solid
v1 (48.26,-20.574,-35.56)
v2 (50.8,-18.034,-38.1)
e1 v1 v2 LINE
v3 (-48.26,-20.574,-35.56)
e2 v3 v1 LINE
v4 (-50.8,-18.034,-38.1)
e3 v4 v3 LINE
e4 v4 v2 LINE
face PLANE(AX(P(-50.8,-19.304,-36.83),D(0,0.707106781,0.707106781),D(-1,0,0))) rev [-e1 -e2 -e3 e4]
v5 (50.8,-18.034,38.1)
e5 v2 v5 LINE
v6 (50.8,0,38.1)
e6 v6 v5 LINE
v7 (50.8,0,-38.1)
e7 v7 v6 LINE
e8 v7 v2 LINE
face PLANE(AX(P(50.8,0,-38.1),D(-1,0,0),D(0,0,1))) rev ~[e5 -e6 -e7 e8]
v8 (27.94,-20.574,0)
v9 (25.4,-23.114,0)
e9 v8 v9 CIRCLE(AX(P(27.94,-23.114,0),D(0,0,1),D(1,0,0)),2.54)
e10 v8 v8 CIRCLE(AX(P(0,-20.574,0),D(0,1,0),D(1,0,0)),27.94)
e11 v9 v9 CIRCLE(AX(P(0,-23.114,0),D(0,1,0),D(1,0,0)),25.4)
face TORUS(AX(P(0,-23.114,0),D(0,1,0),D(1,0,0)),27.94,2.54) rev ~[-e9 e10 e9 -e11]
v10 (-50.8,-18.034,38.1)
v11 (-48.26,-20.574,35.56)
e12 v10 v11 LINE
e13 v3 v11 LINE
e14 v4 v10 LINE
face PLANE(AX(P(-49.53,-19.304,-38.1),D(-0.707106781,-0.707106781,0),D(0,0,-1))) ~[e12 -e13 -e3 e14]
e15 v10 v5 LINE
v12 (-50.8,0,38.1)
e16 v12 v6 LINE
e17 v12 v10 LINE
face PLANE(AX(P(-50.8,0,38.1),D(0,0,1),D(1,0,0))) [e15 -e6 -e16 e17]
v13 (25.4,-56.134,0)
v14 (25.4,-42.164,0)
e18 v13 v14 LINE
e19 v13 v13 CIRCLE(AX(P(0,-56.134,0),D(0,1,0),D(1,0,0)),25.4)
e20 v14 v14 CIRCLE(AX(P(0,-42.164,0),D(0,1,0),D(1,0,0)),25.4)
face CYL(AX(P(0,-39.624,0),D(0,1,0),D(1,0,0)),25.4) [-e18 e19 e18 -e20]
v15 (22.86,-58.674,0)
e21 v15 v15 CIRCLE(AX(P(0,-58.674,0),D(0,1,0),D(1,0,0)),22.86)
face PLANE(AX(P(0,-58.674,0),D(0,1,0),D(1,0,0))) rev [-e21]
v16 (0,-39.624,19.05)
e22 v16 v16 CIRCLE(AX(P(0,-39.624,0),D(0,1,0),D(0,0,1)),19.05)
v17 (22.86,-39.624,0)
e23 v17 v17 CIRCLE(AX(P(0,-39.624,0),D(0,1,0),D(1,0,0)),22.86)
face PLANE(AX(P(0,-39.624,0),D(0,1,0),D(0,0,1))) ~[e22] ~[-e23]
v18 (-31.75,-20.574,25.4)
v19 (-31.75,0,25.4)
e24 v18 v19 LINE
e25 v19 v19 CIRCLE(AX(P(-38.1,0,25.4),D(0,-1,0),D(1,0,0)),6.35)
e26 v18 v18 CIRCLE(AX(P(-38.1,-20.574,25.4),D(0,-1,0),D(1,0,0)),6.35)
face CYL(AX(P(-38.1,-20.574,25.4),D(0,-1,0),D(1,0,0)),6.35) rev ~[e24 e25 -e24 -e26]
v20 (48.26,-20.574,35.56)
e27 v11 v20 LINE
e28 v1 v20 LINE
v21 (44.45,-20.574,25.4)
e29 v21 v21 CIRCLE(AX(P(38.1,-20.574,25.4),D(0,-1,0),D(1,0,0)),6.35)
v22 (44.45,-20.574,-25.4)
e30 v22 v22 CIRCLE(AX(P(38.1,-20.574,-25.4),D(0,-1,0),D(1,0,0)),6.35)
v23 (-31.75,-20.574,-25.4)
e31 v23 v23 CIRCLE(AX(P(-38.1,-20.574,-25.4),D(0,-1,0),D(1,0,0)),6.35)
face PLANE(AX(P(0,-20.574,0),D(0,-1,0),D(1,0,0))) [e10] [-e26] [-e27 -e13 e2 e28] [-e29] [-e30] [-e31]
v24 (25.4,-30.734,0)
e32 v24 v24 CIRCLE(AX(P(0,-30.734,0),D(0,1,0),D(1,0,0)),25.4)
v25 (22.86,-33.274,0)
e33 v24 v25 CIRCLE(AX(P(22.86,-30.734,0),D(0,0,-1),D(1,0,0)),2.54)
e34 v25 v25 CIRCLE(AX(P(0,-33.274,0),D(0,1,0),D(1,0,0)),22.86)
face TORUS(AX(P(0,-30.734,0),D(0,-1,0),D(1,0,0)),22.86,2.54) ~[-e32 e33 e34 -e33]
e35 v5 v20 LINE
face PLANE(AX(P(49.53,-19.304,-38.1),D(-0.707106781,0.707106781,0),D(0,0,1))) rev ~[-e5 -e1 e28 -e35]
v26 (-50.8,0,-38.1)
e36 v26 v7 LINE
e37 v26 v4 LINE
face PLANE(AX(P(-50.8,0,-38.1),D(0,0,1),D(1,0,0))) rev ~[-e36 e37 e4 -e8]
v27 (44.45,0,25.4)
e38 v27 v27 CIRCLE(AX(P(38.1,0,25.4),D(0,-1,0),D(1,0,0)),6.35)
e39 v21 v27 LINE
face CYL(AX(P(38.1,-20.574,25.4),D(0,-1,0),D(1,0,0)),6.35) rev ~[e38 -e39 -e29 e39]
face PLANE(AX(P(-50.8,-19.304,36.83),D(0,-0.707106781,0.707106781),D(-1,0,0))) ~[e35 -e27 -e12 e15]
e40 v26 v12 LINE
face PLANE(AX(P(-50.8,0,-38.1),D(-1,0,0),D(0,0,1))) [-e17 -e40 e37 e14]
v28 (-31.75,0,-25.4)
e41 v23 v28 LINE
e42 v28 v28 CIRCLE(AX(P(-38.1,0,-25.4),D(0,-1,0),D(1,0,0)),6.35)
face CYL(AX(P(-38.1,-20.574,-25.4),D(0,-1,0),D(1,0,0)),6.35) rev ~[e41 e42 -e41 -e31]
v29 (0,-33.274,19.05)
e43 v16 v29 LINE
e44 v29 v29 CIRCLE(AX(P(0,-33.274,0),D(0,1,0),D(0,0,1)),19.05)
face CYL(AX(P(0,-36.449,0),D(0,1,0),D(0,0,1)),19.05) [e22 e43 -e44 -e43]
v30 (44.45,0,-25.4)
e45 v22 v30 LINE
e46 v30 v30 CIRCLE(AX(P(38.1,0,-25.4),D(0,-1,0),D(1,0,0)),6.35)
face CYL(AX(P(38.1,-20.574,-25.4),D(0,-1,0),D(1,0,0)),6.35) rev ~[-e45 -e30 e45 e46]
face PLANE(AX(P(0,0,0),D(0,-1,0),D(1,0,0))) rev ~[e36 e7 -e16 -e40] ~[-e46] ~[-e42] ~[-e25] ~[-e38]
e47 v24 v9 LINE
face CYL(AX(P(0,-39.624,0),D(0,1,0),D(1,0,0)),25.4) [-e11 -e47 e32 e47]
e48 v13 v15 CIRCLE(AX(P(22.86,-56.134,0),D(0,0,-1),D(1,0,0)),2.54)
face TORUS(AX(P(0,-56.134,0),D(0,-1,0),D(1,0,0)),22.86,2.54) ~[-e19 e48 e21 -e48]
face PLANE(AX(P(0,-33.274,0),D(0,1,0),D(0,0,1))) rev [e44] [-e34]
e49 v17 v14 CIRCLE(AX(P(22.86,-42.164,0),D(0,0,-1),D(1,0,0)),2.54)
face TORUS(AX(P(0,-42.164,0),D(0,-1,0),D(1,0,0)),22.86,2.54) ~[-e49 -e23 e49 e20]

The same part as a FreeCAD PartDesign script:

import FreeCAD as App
import Part
import Sketcher
from FreeCAD import Vector
Q = App.Units.Quantity


def edges_at(feature, points):
    """Names of the edges that pass closest to the given points."""
    edges = feature.Shape.Edges
    near = lambda p: min(range(len(edges)), key=lambda i: edges[i].distToShape(Part.Vertex(*p))[0])
    return sorted({f"Edge{near(p) + 1}" for p in points})


def add_polygon(sketch, points):
    """Adds a closed chain of lines whose ends are joined by coincident constraints."""
    first, n = sketch.GeometryCount, len(points)
    for a, b in zip(points, points[1:] + points[:1]):
        sketch.addGeometry(Part.LineSegment(App.Vector(*a, 0), App.Vector(*b, 0)), False)
    for i in range(n):
        sketch.addConstraint(Sketcher.Constraint("Coincident", first + i, 2, first + (i + 1) % n, 1))

doc = App.newDocument("Part")
body = doc.addObject("PartDesign::Body", "Body")

# Sketch on XZ plane
sketch1 = doc.addObject("Sketcher::SketchObject", "Sketch")
body.addObject(sketch1)
sketch1.AttachmentSupport = (doc.XZ_Plane, [""])
sketch1.MapMode = "FlatFace"
add_polygon(sketch1, [(-50.8, 38.1), (-50.8, -38.1), (50.8, -38.1), (50.8, 38.1)])  # lines 0-3
sketch1.addConstraint([
    Sketcher.Constraint("Vertical", 0),
    Sketcher.Constraint("Horizontal", 1),
    Sketcher.Constraint("Vertical", 2),
    Sketcher.Constraint("Horizontal", 3),
    Sketcher.Constraint("Symmetric", 0, 2, 2, 2, -1, 1),
    Sketcher.Constraint("DistanceX", 1, 1, 1, 2, Q("4 in")),
    Sketcher.Constraint("DistanceY", 0, 2, 0, 1, Q("3 in")),
])
pad1 = doc.addObject("PartDesign::Pad", "Pad")
body.addObject(pad1)
pad1.Profile = sketch1
pad1.Length = Q("0.81 in")

# Sketch on XZ plane
sketch2 = doc.addObject("Sketcher::SketchObject", "Sketch001")
body.addObject(sketch2)
sketch2.AttachmentSupport = (doc.XZ_Plane, [""])
sketch2.MapMode = "FlatFace"
sketch2.AttachmentOffset = App.Placement(Vector(0, 0, 0.81 * 25.4), App.Rotation())
sketch2.addGeometry([
    Part.Circle(Vector(38.1, -25.4, 0), Vector(0, 0, 1), 6.35),
    Part.Circle(Vector(-38.1, -25.4, 0), Vector(0, 0, 1), 6.35),
    Part.Circle(Vector(-38.1, 25.4, 0), Vector(0, 0, 1), 6.35),
    Part.Circle(Vector(38.1, 25.4, 0), Vector(0, 0, 1), 6.35),
], False)
sketch2.addConstraint([
    Sketcher.Constraint("Equal", 0, 1),
    Sketcher.Constraint("Equal", 1, 2),
    Sketcher.Constraint("Equal", 2, 3),
    Sketcher.Constraint("Symmetric", 0, 3, 2, 3, -1, 1),
    Sketcher.Constraint("Symmetric", 1, 3, 3, 3, -1, 1),
    Sketcher.Constraint("Symmetric", 0, 3, 1, 3, -2),
    Sketcher.Constraint("Diameter", 0, Q("0.5 in")),
    Sketcher.Constraint("DistanceY", 0, 3, -1, 1, Q("1 in")),
    Sketcher.Constraint("DistanceX", 1, 3, 0, 3, Q("3 in")),
])
pocket1 = doc.addObject("PartDesign::Pocket", "Pocket")
body.addObject(pocket1)
pocket1.Profile = sketch2
pocket1.Length = Q("1 in")

# Sketch on XY plane
sketch3 = doc.addObject("Sketcher::SketchObject", "Sketch002")
body.addObject(sketch3)
sketch3.AttachmentSupport = (doc.XY_Plane, [""])
sketch3.MapMode = "FlatFace"
add_polygon(sketch3, [(0, -20.574), (0, -58.674), (25.4, -58.674), (25.4, -20.574)])  # lines 0-3
sketch3.addConstraint([
    Sketcher.Constraint("Vertical", 0),
    Sketcher.Constraint("Horizontal", 1),
    Sketcher.Constraint("Vertical", 2),
    Sketcher.Constraint("Horizontal", 3),
    Sketcher.Constraint("PointOnObject", 0, 2, -2),
    Sketcher.Constraint("DistanceX", 1, 1, 1, 2, Q("1 in")),
    Sketcher.Constraint("DistanceY", 0, 2, 0, 1, Q("1.5 in")),
    Sketcher.Constraint("DistanceY", 0, 2, -1, 1, Q("2.31 in")),
])
revolution = doc.addObject("PartDesign::Revolution", "Revolution")
body.addObject(revolution)
revolution.Profile = sketch3
revolution.ReferenceAxis = (sketch3, ["V_Axis"])
revolution.Angle = 360

# Sketch on YZ plane
sketch4 = doc.addObject("Sketcher::SketchObject", "Sketch003")
body.addObject(sketch4)
sketch4.AttachmentSupport = (doc.YZ_Plane, [""])
sketch4.MapMode = "FlatFace"
add_polygon(sketch4, [(-39.624, 33.321227), (-39.624, 19.05), (-33.274, 19.05), (-33.274, 33.321227)])  # lines 0-3
sketch4.addConstraint([
    Sketcher.Constraint("Vertical", 0),
    Sketcher.Constraint("Horizontal", 1),
    Sketcher.Constraint("Vertical", 2),
    Sketcher.Constraint("Horizontal", 3),
    Sketcher.Constraint("DistanceX", 1, 1, 1, 2, Q("0.25 in")),
    Sketcher.Constraint("DistanceX", 0, 2, -1, 1, Q("1.56 in")),
    Sketcher.Constraint("DistanceY", -1, 1, 0, 2, Q("0.75 in")),
    Sketcher.Constraint("DistanceY", 0, 2, 0, 1, 14.271227),
])
groove = doc.addObject("PartDesign::Groove", "Groove")
body.addObject(groove)
groove.Profile = sketch4
groove.ReferenceAxis = (sketch4, ["H_Axis"])
groove.Angle = 360
doc.recompute()

chamfer = doc.addObject("PartDesign::Chamfer", "Chamfer")
body.addObject(chamfer)
chamfer.Base = (groove, edges_at(groove, [
    (0, -20.574, 38.1),
    (50.8, -20.574, 0),
    (0, -20.574, -38.1),
    (-50.8, -20.574, 0),
]))
chamfer.Size = Q("0.1 in")
doc.recompute()

fillet = doc.addObject("PartDesign::Fillet", "Fillet")
body.addObject(fillet)
fillet.Base = (chamfer, edges_at(chamfer, [(-25.4, -20.574, 0), (-25.4, -33.274, 0), (-25.4, -39.624, 0)]))
fillet.Radius = Q("0.1 in")
doc.recompute()

fillet2 = doc.addObject("PartDesign::Fillet", "Fillet001")
body.addObject(fillet2)
fillet2.Base = (fillet, edges_at(fillet, [(-25.4, -58.674, 0)]))
fillet2.Radius = Q("0.1 in")

doc.recompute()
